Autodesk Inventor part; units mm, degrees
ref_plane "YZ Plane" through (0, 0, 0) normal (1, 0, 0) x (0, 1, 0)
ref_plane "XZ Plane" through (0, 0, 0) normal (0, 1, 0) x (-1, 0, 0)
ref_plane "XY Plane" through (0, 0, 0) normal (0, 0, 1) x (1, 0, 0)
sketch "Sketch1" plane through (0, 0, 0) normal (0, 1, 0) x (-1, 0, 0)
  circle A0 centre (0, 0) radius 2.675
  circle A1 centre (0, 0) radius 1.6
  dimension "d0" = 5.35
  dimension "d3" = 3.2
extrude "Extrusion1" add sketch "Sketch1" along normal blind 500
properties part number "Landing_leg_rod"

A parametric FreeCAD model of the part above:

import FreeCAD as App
import Part
import Sketcher
from FreeCAD import Vector

doc = App.newDocument("Part")
body = doc.addObject("PartDesign::Body", "Body")

sketch1 = body.newObject("Sketcher::SketchObject", "Sketch")
sketch1.AttachmentSupport = (doc.getObject("XZ_Plane"), [""])
sketch1.MapMode = "FlatFace"
sketch1.addGeometry(Part.Circle(Vector(0, 0, 0), Vector(0, 0, 1), 2.7), False)
sketch1.addGeometry(Part.Circle(Vector(0, 0, 0), Vector(0, 0, 1), 1.6), False)
sketch1.addConstraint(Sketcher.Constraint("Coincident", 0, 3, -1, 1))
sketch1.addConstraint(Sketcher.Constraint("Coincident", 1, 3, -1, 1))
sketch1.addConstraint(Sketcher.Constraint("Diameter", 1, 3.2))
sketch1.addConstraint(Sketcher.Constraint("Diameter", 0, 5.35))
pad1 = body.newObject("PartDesign::Pad", "Pad")
pad1.Profile = sketch1
pad1.Length = 500
pad1.Reversed = True

doc.recompute()
